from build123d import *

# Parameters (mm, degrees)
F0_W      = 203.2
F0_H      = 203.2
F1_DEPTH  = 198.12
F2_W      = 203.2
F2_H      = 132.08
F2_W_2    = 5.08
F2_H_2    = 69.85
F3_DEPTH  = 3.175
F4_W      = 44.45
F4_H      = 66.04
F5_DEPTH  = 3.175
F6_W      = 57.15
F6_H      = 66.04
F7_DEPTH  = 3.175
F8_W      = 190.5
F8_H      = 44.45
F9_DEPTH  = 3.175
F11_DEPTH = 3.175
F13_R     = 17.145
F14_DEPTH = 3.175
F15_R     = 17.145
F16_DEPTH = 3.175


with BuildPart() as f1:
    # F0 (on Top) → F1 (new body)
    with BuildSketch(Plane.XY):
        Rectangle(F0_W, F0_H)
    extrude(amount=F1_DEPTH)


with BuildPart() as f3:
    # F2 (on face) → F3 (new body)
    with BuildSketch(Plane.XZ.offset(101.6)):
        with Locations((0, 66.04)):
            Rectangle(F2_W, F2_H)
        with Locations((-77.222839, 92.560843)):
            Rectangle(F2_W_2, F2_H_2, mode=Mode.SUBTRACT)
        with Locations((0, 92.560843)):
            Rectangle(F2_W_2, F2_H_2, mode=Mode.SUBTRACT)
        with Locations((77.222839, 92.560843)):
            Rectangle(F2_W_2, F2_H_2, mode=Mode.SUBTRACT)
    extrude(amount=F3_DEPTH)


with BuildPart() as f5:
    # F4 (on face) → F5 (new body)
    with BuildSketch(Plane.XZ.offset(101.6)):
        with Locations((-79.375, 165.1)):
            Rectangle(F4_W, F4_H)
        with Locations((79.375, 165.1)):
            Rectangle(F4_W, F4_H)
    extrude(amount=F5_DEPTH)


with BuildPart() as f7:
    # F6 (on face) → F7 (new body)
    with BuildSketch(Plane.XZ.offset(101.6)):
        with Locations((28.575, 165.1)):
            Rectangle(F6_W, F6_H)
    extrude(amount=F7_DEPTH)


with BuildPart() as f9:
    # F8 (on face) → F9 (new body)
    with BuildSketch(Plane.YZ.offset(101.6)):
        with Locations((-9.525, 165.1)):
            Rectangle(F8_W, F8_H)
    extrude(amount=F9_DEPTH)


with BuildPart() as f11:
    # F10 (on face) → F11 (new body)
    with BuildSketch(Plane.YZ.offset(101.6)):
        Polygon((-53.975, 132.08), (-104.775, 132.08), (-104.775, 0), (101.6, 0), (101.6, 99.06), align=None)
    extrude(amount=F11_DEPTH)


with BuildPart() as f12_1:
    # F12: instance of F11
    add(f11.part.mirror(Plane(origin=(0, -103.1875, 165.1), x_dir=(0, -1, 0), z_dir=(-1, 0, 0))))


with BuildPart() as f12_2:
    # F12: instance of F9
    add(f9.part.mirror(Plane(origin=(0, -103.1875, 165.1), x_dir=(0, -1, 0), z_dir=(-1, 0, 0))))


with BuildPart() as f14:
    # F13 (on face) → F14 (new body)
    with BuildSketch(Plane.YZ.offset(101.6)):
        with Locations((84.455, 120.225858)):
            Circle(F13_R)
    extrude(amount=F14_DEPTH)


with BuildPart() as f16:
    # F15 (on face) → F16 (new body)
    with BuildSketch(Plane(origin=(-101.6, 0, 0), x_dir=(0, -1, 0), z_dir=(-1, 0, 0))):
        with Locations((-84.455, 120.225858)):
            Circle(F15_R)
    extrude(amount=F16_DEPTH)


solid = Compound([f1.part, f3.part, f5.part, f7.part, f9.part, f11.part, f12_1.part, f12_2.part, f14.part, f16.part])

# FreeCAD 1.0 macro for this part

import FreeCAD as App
import Part
import Sketcher

V = App.Vector
Q = App.Units.Quantity


def add_polygon(sketch, points):
    """Adds a closed chain of lines whose ends are joined by coincident constraints."""
    first, n = sketch.GeometryCount, len(points)
    for a, b in zip(points, points[1:] + points[:1]):
        sketch.addGeometry(Part.LineSegment(App.Vector(*a, 0), App.Vector(*b, 0)), False)
    for i in range(n):
        sketch.addConstraint(Sketcher.Constraint("Coincident", first + i, 2, first + (i + 1) % n, 1))

doc = App.newDocument("Part")
body = doc.addObject("PartDesign::Body", "Body")

# Sketch on XY plane
sketch1 = body.newObject("Sketcher::SketchObject", "Sketch")
sketch1.AttachmentSupport = (doc.getObject("XY_Plane"), [""])
sketch1.MapMode = "FlatFace"
add_polygon(sketch1, [(-101.6, 101.6), (-101.6, -101.6), (101.6, -101.6), (101.6, 101.6)])  # lines 0-3
sketch1.addConstraint([
    Sketcher.Constraint("Vertical", 0),
    Sketcher.Constraint("Horizontal", 1),
    Sketcher.Constraint("Vertical", 2),
    Sketcher.Constraint("Horizontal", 3),
    Sketcher.Constraint("Symmetric", 0, 2, 2, 2, -1, 1),
    Sketcher.Constraint("Equal", 3, 0),
    Sketcher.Constraint("DistanceX", 1, 1, 1, 2, Q("8 in")),
])
pad1 = body.newObject("PartDesign::Pad", "Pad")
pad1.Profile = sketch1
pad1.Length = Q("7.8 in")
body2 = doc.addObject("PartDesign::Body", "Body001")

# Sketch on XZ plane
sketch2 = body2.newObject("Sketcher::SketchObject", "Sketch001")
sketch2.AttachmentSupport = (doc.getObject("XZ_Plane001"), [""])
sketch2.MapMode = "FlatFace"
sketch2.AttachmentOffset = App.Placement(V(0, 0, 4 * 25.4), App.Rotation())
add_polygon(sketch2, [(-101.6, 132.08), (-101.6, 0), (101.6, 0), (101.6, 132.08)])  # lines 0-3
add_polygon(sketch2, [(-74.682839, 57.635843), (-79.762839, 57.635843), (-79.762839, 127.485843), (-74.682839, 127.485843)])  # lines 4-7
add_polygon(sketch2, [(2.54, 57.635843), (-2.54, 57.635843), (-2.54, 127.485843), (2.54, 127.485843)])  # lines 8-11
add_polygon(sketch2, [(79.762839, 57.635843), (74.682839, 57.635843), (74.682839, 127.485843), (79.762839, 127.485843)])  # lines 12-15
sketch2.addConstraint([
    Sketcher.Constraint("Vertical", 0),
    Sketcher.Constraint("Horizontal", 1),
    Sketcher.Constraint("Vertical", 2),
    Sketcher.Constraint("Horizontal", 3),
    Sketcher.Constraint("Horizontal", 4),
    Sketcher.Constraint("Vertical", 5),
    Sketcher.Constraint("Horizontal", 6),
    Sketcher.Constraint("Vertical", 7),
    Sketcher.Constraint("Horizontal", 8),
    Sketcher.Constraint("Vertical", 9),
    Sketcher.Constraint("Horizontal", 10),
    Sketcher.Constraint("Vertical", 11),
    Sketcher.Constraint("Horizontal", 12),
    Sketcher.Constraint("Vertical", 13),
    Sketcher.Constraint("Horizontal", 14),
    Sketcher.Constraint("Vertical", 15),
    Sketcher.Constraint("Symmetric", 0, 2, 1, 2, -1, 1),
    Sketcher.Constraint("Symmetric", 7, 2, 12, 2, -2),
    Sketcher.Constraint("Symmetric", 5, 2, 14, 2, -2),
    Sketcher.Constraint("Horizontal", 7, 2, 8, 2),
    Sketcher.Constraint("Horizontal", 6, 2, 9, 2),
    Sketcher.Constraint("Equal", 6, 8),
    Sketcher.Constraint("DistanceX", 1, 1, 1, 2, Q("8 in")),
    Sketcher.Constraint("DistanceX", 4, 2, 4, 1, Q("0.2 in")),
    Sketcher.Constraint("DistanceY", 0, 2, 0, 1, Q("5.2 in")),
    Sketcher.Constraint("DistanceY", 5, 1, 5, 2, Q("2.75 in")),
    Sketcher.Constraint("DistanceX", 8, 2, -1, 1, Q("0.1 in")),
    Sketcher.Constraint("DistanceX", 4, 2, -1, 1, Q("79.762839 mm")),
    Sketcher.Constraint("DistanceY", -1, 1, 4, 2, Q("57.635843 mm")),
])
pad2 = body2.newObject("PartDesign::Pad", "Pad001")
pad2.Profile = sketch2
pad2.Length = Q("0.125 in")
body3 = doc.addObject("PartDesign::Body", "Body002")
body3.AllowCompound = True

# Sketch on XZ plane
sketch3 = body3.newObject("Sketcher::SketchObject", "Sketch002")
sketch3.AttachmentSupport = (doc.getObject("XZ_Plane002"), [""])
sketch3.MapMode = "FlatFace"
sketch3.AttachmentOffset = App.Placement(V(0, 0, 4 * 25.4), App.Rotation())
add_polygon(sketch3, [(-101.6, 198.12), (-101.6, 132.08), (-57.15, 132.08), (-57.15, 198.12)])  # lines 0-3
add_polygon(sketch3, [(57.15, 198.12), (57.15, 132.08), (101.6, 132.08), (101.6, 198.12)])  # lines 4-7
sketch3.addConstraint([
    Sketcher.Constraint("Vertical", 0),
    Sketcher.Constraint("Horizontal", 1),
    Sketcher.Constraint("Vertical", 2),
    Sketcher.Constraint("Horizontal", 3),
    Sketcher.Constraint("Vertical", 4),
    Sketcher.Constraint("Horizontal", 5),
    Sketcher.Constraint("Vertical", 6),
    Sketcher.Constraint("Horizontal", 7),
    Sketcher.Constraint("Symmetric", 1, 2, 4, 2, -2),
    Sketcher.Constraint("Symmetric", 3, 2, 6, 2, -2),
    Sketcher.Constraint("DistanceY", 0, 2, 0, 1, Q("2.6 in")),
    Sketcher.Constraint("DistanceX", 0, 2, -1, 1, Q("4 in")),
    Sketcher.Constraint("DistanceX", 1, 1, 1, 2, Q("1.75 in")),
    Sketcher.Constraint("DistanceY", -1, 1, 0, 2, Q("5.2 in")),
])
pad3 = body3.newObject("PartDesign::Pad", "Pad002")
pad3.Profile = sketch3
pad3.Length = Q("0.125 in")
body4 = doc.addObject("PartDesign::Body", "Body003")

# Sketch on XZ plane
sketch4 = body4.newObject("Sketcher::SketchObject", "Sketch003")
sketch4.AttachmentSupport = (doc.getObject("XZ_Plane003"), [""])
sketch4.MapMode = "FlatFace"
sketch4.AttachmentOffset = App.Placement(V(0, 0, 4 * 25.4), App.Rotation())
add_polygon(sketch4, [(0, 198.12), (0, 132.08), (57.15, 132.08), (57.15, 198.12)])  # lines 0-3
sketch4.addConstraint([
    Sketcher.Constraint("Vertical", 0),
    Sketcher.Constraint("Horizontal", 1),
    Sketcher.Constraint("Vertical", 2),
    Sketcher.Constraint("Horizontal", 3),
    Sketcher.Constraint("PointOnObject", 0, 2, -2),
    Sketcher.Constraint("DistanceY", 0, 2, 0, 1, Q("2.6 in")),
    Sketcher.Constraint("DistanceX", 1, 1, 1, 2, Q("2.25 in")),
    Sketcher.Constraint("DistanceY", -1, 1, 0, 2, Q("5.2 in")),
])
pad4 = body4.newObject("PartDesign::Pad", "Pad003")
pad4.Profile = sketch4
pad4.Length = Q("0.125 in")
body5 = doc.addObject("PartDesign::Body", "Body004")

# Sketch on YZ plane
sketch5 = body5.newObject("Sketcher::SketchObject", "Sketch004")
sketch5.AttachmentSupport = (doc.getObject("YZ_Plane004"), [""])
sketch5.MapMode = "FlatFace"
sketch5.AttachmentOffset = App.Placement(V(0, 0, 4 * 25.4), App.Rotation())
add_polygon(sketch5, [(-104.775, 187.325), (-104.775, 142.875), (85.725, 142.875), (85.725, 187.325)])  # lines 0-3
sketch5.addConstraint([
    Sketcher.Constraint("Vertical", 0),
    Sketcher.Constraint("Horizontal", 1),
    Sketcher.Constraint("Vertical", 2),
    Sketcher.Constraint("Horizontal", 3),
    Sketcher.Constraint("DistanceX", 1, 1, 1, 2, Q("7.5 in")),
    Sketcher.Constraint("DistanceY", 0, 2, 0, 1, Q("1.75 in")),
    Sketcher.Constraint("DistanceX", 0, 2, -1, 1, Q("4.125 in")),
    Sketcher.Constraint("DistanceY", -1, 1, 0, 2, Q("5.625 in")),
])
pad5 = body5.newObject("PartDesign::Pad", "Pad004")
pad5.Profile = sketch5
pad5.Length = Q("0.125 in")
body6 = doc.addObject("PartDesign::Body", "Body005")

# Sketch on YZ plane
sketch6 = body6.newObject("Sketcher::SketchObject", "Sketch005")
sketch6.AttachmentSupport = (doc.getObject("YZ_Plane005"), [""])
sketch6.MapMode = "FlatFace"
sketch6.AttachmentOffset = App.Placement(V(0, 0, 4 * 25.4), App.Rotation())
add_polygon(sketch6, [(-53.975, 132.08), (-104.775, 132.08), (-104.775, 0), (101.6, 0), (101.6, 99.06)])  # lines 0-4
sketch6.addConstraint([
    Sketcher.Constraint("Horizontal", 0),
    Sketcher.Constraint("Vertical", 1),
    Sketcher.Constraint("Horizontal", 2),
    Sketcher.Constraint("Vertical", 3),
    Sketcher.Constraint("PointOnObject", 1, 2, -1),
    Sketcher.Constraint("DistanceX", 0, 2, 0, 1, Q("2 in")),
    Sketcher.Constraint("DistanceY", 1, 2, 1, 1, Q("5.2 in")),
    Sketcher.Constraint("DistanceY", 3, 1, 3, 2, Q("3.9 in")),
    Sketcher.Constraint("DistanceX", -1, 1, 2, 2, Q("4 in")),
    Sketcher.Constraint("DistanceX", 2, 1, 2, 2, Q("8.125 in")),
])
pad6 = body6.newObject("PartDesign::Pad", "Pad005")
pad6.Profile = sketch6
pad6.Length = Q("0.125 in")
body7 = doc.addObject("PartDesign::Body", "Body006")
doc.recompute()

mirroring = doc.addObject("Part::Mirroring", "Mirroring")
mirroring.Source = body6
mirroring.Base = V(0, -103.1875, 165.1)
mirroring.Normal = V(-1, 0, 0)
body7.BaseFeature = mirroring
doc.recompute()
body8 = doc.addObject("PartDesign::Body", "Body007")
doc.recompute()

mirroring2 = doc.addObject("Part::Mirroring", "Mirroring001")
mirroring2.Source = body5
mirroring2.Base = V(0, -103.1875, 165.1)
mirroring2.Normal = V(-1, 0, 0)
body8.BaseFeature = mirroring2
doc.recompute()
body9 = doc.addObject("PartDesign::Body", "Body008")

# Sketch on YZ plane
sketch7 = body9.newObject("Sketcher::SketchObject", "Sketch006")
sketch7.AttachmentSupport = (doc.getObject("YZ_Plane008"), [""])
sketch7.MapMode = "FlatFace"
sketch7.AttachmentOffset = App.Placement(V(0, 0, 4 * 25.4), App.Rotation())
sketch7.addGeometry(Part.Circle(V(84.455, 120.225858, 0), V(0, 0, 1), 17.145), False)
sketch7.addConstraint([
    Sketcher.Constraint("Diameter", 0, Q("1.35 in")),
    Sketcher.Constraint("DistanceX", -1, 1, 0, 3, Q("3.325 in")),
    Sketcher.Constraint("DistanceY", -1, 1, 0, 3, Q("120.225858 mm")),
])
pad7 = body9.newObject("PartDesign::Pad", "Pad006")
pad7.Profile = sketch7
pad7.Length = Q("0.125 in")
body10 = doc.addObject("PartDesign::Body", "Body009")

# Sketch on YZ plane
sketch8 = body10.newObject("Sketcher::SketchObject", "Sketch007")
sketch8.AttachmentSupport = (doc.getObject("YZ_Plane009"), [""])
sketch8.MapMode = "FlatFace"
sketch8.AttachmentOffset = App.Placement(V(0, 0, -4 * 25.4), App.Rotation())
sketch8.addGeometry(Part.Circle(V(84.455, 120.225858, 0), V(0, 0, 1), 17.145), False)
sketch8.addConstraint([
    Sketcher.Constraint("Diameter", 0, Q("1.35 in")),
    Sketcher.Constraint("DistanceX", -1, 1, 0, 3, Q("3.325 in")),
    Sketcher.Constraint("DistanceY", -1, 1, 0, 3, Q("120.225858 mm")),
])
pad8 = body10.newObject("PartDesign::Pad", "Pad007")
pad8.Profile = sketch8
pad8.Length = Q("0.125 in")
pad8.Reversed = True
mirroring.Visibility = False
mirroring2.Visibility = False

doc.recompute()
